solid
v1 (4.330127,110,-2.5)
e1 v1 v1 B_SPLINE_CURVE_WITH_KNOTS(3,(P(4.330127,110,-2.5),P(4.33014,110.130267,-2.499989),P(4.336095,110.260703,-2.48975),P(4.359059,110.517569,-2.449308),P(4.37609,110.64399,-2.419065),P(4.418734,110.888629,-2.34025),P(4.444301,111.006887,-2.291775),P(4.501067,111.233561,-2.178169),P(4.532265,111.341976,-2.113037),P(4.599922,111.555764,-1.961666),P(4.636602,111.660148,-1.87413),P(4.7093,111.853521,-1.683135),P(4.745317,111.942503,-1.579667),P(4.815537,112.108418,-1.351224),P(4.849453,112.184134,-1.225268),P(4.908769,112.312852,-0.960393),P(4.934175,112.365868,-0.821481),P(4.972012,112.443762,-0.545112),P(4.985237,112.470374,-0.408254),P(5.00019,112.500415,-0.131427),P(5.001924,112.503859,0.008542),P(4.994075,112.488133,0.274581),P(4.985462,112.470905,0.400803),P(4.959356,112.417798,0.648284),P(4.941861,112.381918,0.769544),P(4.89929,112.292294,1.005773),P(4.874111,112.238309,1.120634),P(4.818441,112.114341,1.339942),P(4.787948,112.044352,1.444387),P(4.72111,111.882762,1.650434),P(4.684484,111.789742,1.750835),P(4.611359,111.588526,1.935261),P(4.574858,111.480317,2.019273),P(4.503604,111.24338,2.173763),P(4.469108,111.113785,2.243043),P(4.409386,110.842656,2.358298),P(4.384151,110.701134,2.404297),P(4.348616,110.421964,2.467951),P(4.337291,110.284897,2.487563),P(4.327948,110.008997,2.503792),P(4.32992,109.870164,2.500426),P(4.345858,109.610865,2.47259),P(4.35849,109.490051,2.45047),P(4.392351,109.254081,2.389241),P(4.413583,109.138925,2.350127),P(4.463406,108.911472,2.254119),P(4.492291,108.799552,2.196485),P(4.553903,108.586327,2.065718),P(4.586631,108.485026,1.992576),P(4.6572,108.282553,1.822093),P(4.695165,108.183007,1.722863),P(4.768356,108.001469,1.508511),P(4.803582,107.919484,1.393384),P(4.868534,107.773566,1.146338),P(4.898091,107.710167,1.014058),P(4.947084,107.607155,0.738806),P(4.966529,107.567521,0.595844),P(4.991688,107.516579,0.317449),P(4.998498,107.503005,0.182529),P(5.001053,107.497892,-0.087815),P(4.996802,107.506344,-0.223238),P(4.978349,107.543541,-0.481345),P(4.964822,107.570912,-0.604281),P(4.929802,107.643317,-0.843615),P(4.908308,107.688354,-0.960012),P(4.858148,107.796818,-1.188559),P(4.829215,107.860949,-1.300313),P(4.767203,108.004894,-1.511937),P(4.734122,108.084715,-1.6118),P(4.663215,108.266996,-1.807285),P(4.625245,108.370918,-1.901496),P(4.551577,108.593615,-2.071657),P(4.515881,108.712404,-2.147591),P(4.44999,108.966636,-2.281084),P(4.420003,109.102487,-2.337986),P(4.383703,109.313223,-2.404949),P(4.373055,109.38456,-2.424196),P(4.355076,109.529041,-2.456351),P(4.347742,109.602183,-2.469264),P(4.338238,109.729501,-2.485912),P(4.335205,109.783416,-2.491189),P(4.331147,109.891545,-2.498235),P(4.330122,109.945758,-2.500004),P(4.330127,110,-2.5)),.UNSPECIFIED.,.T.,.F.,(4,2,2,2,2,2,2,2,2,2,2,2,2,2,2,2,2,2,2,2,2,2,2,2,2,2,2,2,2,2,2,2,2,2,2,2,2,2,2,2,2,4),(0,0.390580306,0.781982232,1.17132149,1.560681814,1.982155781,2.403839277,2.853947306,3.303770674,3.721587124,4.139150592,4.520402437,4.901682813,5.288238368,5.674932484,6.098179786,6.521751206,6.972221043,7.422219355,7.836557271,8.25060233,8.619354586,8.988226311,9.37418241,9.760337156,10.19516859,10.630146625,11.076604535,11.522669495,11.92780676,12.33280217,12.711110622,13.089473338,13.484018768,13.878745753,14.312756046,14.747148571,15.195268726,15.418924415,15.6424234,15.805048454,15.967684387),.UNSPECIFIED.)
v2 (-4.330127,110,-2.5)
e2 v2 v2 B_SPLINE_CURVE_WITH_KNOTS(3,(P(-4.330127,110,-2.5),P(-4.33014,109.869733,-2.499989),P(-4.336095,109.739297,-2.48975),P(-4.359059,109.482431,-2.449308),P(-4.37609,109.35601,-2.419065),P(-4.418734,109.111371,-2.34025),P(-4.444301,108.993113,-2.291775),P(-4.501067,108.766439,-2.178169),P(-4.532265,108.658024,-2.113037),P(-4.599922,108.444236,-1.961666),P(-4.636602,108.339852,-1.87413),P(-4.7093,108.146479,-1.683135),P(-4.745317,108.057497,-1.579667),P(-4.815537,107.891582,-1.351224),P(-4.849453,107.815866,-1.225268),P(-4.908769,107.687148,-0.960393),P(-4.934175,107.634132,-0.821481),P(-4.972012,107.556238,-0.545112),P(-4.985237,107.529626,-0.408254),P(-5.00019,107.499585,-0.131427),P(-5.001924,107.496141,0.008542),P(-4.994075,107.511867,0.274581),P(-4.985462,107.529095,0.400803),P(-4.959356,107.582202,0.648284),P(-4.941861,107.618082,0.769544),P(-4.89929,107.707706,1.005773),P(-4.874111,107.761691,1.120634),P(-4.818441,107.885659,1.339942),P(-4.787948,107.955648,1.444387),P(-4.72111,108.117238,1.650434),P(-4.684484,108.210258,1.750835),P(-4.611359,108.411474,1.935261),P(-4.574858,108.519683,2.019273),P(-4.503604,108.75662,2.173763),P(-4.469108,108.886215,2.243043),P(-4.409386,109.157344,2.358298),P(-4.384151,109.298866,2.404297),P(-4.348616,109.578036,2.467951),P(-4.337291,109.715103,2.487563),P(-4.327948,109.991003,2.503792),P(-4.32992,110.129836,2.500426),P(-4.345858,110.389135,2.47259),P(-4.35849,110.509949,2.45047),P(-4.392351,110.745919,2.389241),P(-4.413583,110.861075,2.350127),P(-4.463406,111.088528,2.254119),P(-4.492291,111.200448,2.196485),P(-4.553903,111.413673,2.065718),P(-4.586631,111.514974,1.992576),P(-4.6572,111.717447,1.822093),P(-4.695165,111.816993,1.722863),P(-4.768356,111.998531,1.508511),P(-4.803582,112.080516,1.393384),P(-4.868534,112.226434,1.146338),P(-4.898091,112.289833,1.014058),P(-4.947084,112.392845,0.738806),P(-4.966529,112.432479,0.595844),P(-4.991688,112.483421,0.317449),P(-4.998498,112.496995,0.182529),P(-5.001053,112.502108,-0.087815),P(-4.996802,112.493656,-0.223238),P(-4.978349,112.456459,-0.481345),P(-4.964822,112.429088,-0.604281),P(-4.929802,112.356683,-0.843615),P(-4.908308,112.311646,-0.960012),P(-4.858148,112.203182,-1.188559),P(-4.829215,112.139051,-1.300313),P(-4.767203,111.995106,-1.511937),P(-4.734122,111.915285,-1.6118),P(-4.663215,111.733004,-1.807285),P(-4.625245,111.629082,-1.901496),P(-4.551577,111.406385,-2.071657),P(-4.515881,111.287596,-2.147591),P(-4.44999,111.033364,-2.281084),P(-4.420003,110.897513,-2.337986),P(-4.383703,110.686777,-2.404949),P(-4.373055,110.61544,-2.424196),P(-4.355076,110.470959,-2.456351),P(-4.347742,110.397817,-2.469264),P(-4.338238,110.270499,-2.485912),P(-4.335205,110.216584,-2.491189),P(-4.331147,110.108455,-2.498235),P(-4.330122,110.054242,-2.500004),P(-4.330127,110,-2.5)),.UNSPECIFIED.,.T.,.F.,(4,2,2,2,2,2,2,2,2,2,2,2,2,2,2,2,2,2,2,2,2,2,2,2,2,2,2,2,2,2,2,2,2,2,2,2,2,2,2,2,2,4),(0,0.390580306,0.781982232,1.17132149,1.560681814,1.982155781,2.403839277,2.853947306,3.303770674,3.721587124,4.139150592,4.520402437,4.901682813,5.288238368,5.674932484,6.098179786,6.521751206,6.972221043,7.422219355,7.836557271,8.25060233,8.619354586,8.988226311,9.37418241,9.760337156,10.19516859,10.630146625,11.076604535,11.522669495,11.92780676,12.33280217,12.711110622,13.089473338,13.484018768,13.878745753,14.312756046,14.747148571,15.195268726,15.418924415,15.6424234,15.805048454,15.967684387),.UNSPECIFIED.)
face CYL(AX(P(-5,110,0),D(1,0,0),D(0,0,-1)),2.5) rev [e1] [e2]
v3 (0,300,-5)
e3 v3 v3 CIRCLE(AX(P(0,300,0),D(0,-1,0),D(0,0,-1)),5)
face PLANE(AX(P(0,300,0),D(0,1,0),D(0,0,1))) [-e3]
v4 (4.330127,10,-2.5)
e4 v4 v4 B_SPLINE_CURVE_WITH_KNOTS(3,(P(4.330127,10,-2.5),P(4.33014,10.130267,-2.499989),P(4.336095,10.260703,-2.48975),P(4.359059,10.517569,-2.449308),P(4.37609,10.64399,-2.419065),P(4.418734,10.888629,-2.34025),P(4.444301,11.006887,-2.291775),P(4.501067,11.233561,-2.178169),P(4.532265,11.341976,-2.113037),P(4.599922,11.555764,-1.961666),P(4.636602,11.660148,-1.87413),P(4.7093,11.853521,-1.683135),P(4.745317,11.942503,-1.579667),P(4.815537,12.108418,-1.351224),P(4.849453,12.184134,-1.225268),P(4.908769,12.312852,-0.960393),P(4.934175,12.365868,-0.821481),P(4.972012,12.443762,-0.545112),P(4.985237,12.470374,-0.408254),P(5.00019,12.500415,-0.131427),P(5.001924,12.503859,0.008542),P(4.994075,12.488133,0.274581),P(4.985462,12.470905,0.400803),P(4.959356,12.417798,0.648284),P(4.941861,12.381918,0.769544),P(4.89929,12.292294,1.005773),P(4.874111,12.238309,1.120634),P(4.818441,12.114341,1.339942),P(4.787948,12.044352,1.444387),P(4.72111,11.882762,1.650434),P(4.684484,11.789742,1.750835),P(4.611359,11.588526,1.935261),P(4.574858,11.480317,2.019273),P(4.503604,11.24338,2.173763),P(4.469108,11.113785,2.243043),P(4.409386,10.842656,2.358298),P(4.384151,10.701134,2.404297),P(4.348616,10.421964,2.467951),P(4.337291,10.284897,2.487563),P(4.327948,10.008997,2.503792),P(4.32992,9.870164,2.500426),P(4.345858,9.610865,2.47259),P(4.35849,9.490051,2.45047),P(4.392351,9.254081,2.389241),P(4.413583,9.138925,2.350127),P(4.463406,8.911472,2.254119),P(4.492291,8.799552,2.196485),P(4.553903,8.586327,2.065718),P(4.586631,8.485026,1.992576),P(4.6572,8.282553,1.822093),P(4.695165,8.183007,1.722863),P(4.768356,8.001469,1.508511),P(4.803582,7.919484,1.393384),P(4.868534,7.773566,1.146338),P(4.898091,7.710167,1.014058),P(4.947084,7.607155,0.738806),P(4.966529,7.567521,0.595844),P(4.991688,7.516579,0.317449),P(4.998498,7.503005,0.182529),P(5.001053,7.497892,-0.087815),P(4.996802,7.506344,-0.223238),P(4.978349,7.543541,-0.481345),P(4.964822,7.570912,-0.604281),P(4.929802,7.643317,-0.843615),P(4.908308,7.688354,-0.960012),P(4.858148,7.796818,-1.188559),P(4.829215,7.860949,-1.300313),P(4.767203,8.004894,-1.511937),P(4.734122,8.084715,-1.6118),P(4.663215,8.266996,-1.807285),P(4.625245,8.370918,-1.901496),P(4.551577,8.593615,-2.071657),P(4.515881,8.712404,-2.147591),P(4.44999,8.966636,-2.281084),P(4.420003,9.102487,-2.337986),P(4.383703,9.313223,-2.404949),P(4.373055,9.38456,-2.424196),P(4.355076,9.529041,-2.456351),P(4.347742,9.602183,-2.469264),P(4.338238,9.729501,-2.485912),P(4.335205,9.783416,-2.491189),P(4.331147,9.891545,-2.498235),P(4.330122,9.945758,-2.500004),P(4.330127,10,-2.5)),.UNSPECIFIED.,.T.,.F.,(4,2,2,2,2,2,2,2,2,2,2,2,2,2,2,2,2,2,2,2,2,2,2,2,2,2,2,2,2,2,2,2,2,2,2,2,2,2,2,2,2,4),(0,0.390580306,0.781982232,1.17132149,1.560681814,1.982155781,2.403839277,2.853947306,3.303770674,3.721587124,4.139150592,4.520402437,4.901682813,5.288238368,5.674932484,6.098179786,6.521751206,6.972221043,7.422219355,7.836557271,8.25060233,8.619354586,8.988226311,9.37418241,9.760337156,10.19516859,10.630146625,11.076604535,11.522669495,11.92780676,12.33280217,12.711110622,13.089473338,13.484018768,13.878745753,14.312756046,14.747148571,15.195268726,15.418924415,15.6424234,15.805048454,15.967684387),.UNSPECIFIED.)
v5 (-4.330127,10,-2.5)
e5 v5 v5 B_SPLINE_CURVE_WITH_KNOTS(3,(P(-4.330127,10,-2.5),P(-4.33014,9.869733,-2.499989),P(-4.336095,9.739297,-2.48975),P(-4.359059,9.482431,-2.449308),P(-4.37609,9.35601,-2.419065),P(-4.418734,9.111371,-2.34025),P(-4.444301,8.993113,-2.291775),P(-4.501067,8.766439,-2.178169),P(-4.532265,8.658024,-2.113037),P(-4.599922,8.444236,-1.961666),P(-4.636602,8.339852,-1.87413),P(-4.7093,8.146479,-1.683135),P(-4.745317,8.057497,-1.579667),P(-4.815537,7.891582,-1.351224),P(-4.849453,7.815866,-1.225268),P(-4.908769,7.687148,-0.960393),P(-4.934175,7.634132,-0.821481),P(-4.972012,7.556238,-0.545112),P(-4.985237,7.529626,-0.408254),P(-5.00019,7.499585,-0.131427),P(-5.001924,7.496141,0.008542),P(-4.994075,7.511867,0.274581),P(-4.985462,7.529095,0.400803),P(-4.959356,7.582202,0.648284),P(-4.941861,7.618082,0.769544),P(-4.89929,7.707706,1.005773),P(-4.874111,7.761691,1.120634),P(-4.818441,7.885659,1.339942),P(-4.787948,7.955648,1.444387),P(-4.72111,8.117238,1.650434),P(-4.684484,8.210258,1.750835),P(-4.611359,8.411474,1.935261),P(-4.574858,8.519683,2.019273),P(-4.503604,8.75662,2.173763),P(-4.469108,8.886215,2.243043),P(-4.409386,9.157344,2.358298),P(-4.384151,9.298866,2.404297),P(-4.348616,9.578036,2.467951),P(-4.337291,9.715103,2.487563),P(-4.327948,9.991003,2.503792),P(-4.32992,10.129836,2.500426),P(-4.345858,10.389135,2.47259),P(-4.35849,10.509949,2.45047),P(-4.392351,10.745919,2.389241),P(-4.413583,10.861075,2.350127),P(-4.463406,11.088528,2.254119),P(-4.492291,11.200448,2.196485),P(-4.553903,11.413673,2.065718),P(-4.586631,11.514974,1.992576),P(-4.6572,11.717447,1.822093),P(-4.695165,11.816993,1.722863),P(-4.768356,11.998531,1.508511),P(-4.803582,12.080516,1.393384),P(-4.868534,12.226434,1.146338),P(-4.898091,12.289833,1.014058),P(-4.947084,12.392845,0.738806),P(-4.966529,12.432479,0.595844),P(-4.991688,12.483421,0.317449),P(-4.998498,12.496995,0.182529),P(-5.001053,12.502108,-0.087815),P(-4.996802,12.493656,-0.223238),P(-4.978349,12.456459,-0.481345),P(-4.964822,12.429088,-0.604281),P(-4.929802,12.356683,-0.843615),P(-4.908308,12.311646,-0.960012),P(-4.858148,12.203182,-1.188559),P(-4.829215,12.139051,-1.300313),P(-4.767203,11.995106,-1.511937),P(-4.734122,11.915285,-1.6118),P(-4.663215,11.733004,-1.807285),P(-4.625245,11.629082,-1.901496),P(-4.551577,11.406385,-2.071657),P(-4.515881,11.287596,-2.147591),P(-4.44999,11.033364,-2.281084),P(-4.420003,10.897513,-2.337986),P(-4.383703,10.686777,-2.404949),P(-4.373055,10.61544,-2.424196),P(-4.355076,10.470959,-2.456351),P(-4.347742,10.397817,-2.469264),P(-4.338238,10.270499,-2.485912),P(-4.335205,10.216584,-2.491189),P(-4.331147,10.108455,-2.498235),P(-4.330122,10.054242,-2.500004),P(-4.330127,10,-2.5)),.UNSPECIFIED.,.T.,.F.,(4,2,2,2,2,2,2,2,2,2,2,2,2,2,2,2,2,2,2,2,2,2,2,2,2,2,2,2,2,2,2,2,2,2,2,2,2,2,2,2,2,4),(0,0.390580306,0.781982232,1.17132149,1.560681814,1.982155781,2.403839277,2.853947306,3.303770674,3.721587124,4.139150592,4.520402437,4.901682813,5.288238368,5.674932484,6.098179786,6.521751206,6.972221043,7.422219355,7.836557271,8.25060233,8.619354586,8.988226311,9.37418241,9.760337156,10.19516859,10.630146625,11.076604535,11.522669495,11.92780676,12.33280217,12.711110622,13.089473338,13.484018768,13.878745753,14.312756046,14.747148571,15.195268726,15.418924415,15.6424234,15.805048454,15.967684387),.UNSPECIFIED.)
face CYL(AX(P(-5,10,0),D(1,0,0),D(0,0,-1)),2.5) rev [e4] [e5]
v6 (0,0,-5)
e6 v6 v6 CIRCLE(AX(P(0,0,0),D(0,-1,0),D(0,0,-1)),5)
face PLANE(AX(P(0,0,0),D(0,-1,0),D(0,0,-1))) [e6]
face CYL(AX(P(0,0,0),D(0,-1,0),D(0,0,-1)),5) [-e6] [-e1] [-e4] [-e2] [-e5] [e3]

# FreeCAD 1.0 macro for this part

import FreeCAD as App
import Part
import Sketcher
from FreeCAD import Vector
Q = App.Units.Quantity

doc = App.newDocument("Part")
params = doc.addObject("Spreadsheet::Sheet", "Params")
for row, (alias, value) in enumerate([
    ("sketch1_width", "300 mm"),
    ("sketch1_height", "5 mm"),
    ("revolution_angle", "360 deg"),
    ("sketch2_diameter", "5 mm"),
], start=1):
    params.set(f"A{row}", alias)
    params.set(f"B{row}", "=" + value)
    params.setAlias(f"B{row}", alias)

body = doc.addObject("PartDesign::Body", "Body")

# Sketch on YZ plane
sketch1 = body.newObject("Sketcher::SketchObject", "Sketch")
sketch1.AttachmentSupport = (doc.getObject("YZ_Plane"), [""])
sketch1.MapMode = "FlatFace"
sketch1.addGeometry(Part.LineSegment(Vector(300, 0, 0), Vector(0, 0, 0)), False)
sketch1.addGeometry(Part.LineSegment(Vector(0, 0, 0), Vector(0, -5, 0)), False)
sketch1.addGeometry(Part.LineSegment(Vector(0, -5, 0), Vector(300, -5, 0)), False)
sketch1.addGeometry(Part.LineSegment(Vector(300, -5, 0), Vector(300, 0, 0)), False)
sketch1.addConstraint(Sketcher.Constraint("Coincident", 0, 2, 1, 1))
sketch1.addConstraint(Sketcher.Constraint("Coincident", 1, 2, 2, 1))
sketch1.addConstraint(Sketcher.Constraint("Coincident", 2, 2, 3, 1))
sketch1.addConstraint(Sketcher.Constraint("Coincident", 3, 2, 0, 1))
sketch1.addConstraint(Sketcher.Constraint("Horizontal", 0))
sketch1.addConstraint(Sketcher.Constraint("Vertical", 1))
sketch1.addConstraint(Sketcher.Constraint("Horizontal", 2))
sketch1.addConstraint(Sketcher.Constraint("Vertical", 3))
sketch1.addConstraint(Sketcher.Constraint("Coincident", 0, 2, -1, 1))
sketch1.addConstraint(Sketcher.Constraint("DistanceX", 0, 2, 0, 1, Q("300 mm")))
sketch1.addConstraint(Sketcher.Constraint("DistanceY", 1, 2, 1, 1, Q("5 mm")))
sketch1.setExpression("Constraints[9]", "Params.sketch1_width")
sketch1.setExpression("Constraints[10]", "Params.sketch1_height")
revolution = body.newObject("PartDesign::Revolution", "Revolution")
revolution.Profile = sketch1
revolution.ReferenceAxis = (sketch1, ["H_Axis"])
revolution.setExpression("Angle", "Params.revolution_angle")

# Sketch on YZ plane
sketch2 = body.newObject("Sketcher::SketchObject", "Sketch001")
sketch2.AttachmentSupport = (doc.getObject("YZ_Plane"), [""])
sketch2.MapMode = "FlatFace"
sketch2.addGeometry(Part.Circle(Vector(10, 0, 0), Vector(0, 0, 1), 2.5), False)
sketch2.addGeometry(Part.Circle(Vector(110, 0, 0), Vector(0, 0, 1), 2.5), False)
sketch2.addConstraint(Sketcher.Constraint("Equal", 0, 1))
sketch2.addConstraint(Sketcher.Constraint("PointOnObject", 0, 3, -1))
sketch2.addConstraint(Sketcher.Constraint("PointOnObject", 1, 3, -1))
sketch2.addConstraint(Sketcher.Constraint("Diameter", 0, Q("5 mm")))
sketch2.addConstraint(Sketcher.Constraint("DistanceX", -1, 1, 0, 3, Q("10 mm")))
sketch2.addConstraint(Sketcher.Constraint("DistanceX", -1, 1, 1, 3, Q("110 mm")))
sketch2.setExpression("Constraints[3]", "Params.sketch2_diameter")
pocket1 = body.newObject("PartDesign::Pocket", "Pocket")
pocket1.Profile = sketch2
pocket1.Type = "ThroughAll"
pocket1.Midplane = True

doc.recompute()
